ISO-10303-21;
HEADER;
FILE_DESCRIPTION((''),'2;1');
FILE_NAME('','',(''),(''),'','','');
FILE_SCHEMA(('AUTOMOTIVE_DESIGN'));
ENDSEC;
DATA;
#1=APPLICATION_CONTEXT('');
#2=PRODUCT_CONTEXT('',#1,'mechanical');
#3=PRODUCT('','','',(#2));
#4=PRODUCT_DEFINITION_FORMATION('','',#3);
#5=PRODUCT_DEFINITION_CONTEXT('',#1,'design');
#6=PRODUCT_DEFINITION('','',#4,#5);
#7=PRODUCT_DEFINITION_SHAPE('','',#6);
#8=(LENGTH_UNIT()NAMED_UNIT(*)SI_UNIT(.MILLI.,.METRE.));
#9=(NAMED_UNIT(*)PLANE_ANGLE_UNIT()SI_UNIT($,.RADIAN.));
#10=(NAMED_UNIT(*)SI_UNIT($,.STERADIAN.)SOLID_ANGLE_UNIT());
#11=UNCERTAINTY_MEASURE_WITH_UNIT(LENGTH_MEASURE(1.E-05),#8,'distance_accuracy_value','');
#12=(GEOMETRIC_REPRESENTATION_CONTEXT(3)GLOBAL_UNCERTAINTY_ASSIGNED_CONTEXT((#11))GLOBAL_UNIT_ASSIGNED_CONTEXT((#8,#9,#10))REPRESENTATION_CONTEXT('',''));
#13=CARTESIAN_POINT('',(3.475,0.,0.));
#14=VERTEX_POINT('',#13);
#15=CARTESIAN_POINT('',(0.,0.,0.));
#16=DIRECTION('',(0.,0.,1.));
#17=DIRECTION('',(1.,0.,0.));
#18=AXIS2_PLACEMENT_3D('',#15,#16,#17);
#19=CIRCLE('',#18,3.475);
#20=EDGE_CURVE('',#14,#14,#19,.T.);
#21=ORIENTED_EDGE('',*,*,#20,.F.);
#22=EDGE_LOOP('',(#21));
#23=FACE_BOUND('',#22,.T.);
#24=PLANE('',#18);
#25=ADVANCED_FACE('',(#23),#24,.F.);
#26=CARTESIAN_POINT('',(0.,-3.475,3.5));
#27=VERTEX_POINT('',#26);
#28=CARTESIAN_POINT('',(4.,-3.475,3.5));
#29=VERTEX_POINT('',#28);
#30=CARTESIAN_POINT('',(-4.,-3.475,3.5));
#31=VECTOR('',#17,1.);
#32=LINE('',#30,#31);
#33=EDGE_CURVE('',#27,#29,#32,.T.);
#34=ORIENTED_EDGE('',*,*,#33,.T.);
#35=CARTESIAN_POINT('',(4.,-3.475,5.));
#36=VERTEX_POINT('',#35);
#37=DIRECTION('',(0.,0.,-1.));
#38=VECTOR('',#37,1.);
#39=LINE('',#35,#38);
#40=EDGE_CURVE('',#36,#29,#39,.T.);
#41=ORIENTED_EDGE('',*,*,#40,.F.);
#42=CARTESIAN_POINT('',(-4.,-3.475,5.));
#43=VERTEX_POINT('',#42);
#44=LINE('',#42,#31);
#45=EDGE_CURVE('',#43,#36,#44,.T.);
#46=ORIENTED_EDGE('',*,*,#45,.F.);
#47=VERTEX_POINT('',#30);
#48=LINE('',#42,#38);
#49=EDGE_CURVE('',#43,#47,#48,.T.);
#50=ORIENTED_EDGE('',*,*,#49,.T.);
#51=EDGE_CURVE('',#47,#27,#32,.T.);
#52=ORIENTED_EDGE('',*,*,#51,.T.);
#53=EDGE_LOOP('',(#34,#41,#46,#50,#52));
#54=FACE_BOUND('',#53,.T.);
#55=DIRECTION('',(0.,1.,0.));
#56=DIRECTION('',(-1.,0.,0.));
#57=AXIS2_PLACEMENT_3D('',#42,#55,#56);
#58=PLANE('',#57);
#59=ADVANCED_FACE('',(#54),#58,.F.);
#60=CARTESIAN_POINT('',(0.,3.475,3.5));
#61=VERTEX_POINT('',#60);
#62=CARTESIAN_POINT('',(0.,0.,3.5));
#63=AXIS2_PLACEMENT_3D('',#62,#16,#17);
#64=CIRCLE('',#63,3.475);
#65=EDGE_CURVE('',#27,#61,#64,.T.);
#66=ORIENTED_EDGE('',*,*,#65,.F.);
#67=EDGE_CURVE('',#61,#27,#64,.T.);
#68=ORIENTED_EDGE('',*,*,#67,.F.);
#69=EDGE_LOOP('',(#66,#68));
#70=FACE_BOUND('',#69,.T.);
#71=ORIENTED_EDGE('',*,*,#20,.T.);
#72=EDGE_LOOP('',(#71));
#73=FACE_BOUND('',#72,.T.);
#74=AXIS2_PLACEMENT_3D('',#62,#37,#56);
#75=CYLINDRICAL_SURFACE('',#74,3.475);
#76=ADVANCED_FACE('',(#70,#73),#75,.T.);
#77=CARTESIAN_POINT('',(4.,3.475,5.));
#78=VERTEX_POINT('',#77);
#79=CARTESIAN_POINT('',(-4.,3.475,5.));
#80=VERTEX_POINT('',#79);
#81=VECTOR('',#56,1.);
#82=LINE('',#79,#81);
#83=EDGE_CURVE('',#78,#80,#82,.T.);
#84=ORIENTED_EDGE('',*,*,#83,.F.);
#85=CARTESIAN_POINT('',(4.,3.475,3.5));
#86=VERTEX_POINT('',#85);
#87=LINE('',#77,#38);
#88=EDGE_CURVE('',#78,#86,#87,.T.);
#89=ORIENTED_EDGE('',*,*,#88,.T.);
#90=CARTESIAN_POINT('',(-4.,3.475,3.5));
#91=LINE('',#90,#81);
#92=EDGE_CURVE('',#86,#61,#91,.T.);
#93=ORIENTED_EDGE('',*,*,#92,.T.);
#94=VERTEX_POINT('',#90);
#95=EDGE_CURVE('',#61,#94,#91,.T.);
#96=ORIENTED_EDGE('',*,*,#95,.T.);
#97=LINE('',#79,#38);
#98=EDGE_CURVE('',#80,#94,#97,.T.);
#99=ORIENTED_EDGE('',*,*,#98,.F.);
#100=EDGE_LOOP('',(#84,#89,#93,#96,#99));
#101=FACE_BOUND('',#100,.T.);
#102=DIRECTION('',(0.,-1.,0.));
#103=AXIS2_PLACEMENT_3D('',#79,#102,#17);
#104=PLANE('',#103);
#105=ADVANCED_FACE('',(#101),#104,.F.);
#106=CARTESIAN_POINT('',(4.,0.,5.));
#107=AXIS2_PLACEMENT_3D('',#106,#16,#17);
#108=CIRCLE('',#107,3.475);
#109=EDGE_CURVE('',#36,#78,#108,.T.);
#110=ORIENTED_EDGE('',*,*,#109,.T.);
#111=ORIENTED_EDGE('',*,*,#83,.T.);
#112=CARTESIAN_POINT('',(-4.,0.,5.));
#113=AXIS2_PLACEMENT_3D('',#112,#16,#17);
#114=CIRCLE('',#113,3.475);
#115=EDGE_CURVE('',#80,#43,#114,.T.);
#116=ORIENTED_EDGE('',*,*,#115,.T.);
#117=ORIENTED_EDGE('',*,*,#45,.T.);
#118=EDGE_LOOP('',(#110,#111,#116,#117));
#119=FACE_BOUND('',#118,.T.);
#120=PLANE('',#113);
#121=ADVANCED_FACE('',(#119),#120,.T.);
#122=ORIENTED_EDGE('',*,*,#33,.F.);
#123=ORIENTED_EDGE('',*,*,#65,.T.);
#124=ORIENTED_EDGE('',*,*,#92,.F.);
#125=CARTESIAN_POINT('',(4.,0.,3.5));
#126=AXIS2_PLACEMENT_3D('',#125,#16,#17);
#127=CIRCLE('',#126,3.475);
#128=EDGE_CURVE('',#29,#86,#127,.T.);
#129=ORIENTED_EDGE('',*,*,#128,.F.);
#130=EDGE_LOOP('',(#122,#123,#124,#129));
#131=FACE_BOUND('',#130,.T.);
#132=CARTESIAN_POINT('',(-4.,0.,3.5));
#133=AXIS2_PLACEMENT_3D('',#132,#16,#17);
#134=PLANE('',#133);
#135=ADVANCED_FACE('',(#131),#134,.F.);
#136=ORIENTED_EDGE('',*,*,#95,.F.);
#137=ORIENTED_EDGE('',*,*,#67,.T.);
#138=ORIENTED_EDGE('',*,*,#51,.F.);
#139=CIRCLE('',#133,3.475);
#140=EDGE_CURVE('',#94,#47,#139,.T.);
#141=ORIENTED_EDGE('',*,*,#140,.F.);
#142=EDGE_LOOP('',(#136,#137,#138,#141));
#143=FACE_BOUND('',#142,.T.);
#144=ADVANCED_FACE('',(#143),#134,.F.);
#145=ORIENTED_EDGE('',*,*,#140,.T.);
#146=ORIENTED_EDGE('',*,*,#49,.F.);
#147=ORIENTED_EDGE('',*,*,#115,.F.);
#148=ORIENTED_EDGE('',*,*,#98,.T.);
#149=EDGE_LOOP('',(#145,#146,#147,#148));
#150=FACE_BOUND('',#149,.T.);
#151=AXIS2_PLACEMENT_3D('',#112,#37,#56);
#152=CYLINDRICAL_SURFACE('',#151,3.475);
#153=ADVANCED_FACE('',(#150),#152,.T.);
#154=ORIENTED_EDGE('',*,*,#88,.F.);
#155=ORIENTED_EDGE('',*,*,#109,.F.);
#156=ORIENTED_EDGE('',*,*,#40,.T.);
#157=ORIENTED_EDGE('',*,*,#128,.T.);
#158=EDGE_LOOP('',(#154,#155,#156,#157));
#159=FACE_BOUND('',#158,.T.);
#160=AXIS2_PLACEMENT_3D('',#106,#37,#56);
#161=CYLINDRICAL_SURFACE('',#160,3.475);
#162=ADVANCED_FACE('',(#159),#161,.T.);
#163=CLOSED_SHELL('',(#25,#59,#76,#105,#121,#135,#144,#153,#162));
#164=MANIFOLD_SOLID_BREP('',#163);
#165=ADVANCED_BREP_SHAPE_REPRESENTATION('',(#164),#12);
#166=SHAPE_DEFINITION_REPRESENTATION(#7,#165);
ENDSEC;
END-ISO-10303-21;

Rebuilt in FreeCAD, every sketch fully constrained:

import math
import FreeCAD as App
import Part
import Sketcher
Q = App.Units.Quantity

doc = App.newDocument("Part")
params = doc.addObject("Spreadsheet::Sheet", "Params")
for row, (alias, value) in enumerate([
    ("sketch1_diameter", "6.95 mm"),
    ("pad1_length", "3.5 mm"),
    ("sketch2_width", "8 mm"),
    ("pad2_length", "1.5 mm"),
], start=1):
    params.set(f"A{row}", alias)
    params.set(f"B{row}", "=" + value)
    params.setAlias(f"B{row}", alias)

body = doc.addObject("PartDesign::Body", "Body")

# Sketch on XY plane
sketch1 = doc.addObject("Sketcher::SketchObject", "Sketch")
body.addObject(sketch1)
sketch1.AttachmentSupport = (doc.XY_Plane, [""])
sketch1.MapMode = "FlatFace"
sketch1.addGeometry(Part.Circle(App.Vector(0, 0, 0), App.Vector(0, 0, 1), 3.5), False)
sketch1.addConstraint([
    Sketcher.Constraint("Coincident", 0, 3, -1, 1),
    Sketcher.Constraint("Diameter", 0, Q("6.95 mm")),
])
sketch1.setExpression("Constraints[1]", "Params.sketch1_diameter")
pad1 = doc.addObject("PartDesign::Pad", "Pad")
body.addObject(pad1)
pad1.Profile = sketch1
pad1.setExpression("Length", "Params.pad1_length")

# Sketch on XY plane
sketch2 = doc.addObject("Sketcher::SketchObject", "Sketch001")
body.addObject(sketch2)
sketch2.AttachmentSupport = (doc.XY_Plane, [""])
sketch2.MapMode = "FlatFace"
sketch2.AttachmentOffset = App.Placement(App.Vector(0, 0, 3.5), App.Rotation())
sketch2.addGeometry([
    Part.LineSegment(App.Vector(4, 3.5, 0), App.Vector(-4, 3.5, 0)),
    Part.ArcOfCircle(Part.Circle(App.Vector(-4, 0, 0), App.Vector(0, 0, 1), 3.5), math.radians(90), math.radians(270)),
    Part.LineSegment(App.Vector(-4, -3.5, 0), App.Vector(4, -3.5, 0)),
    Part.ArcOfCircle(Part.Circle(App.Vector(4, 0, 0), App.Vector(0, 0, 1), 3.5), math.radians(-90), math.radians(90)),
], False)
sketch2.addConstraint([
    Sketcher.Constraint("Tangent", 0, 2, 1, 1),
    Sketcher.Constraint("Tangent", 1, 2, 2, 1),
    Sketcher.Constraint("Tangent", 2, 2, 3, 1),
    Sketcher.Constraint("Tangent", 3, 2, 0, 1),
    Sketcher.Constraint("Horizontal", 0),
    Sketcher.Constraint("Horizontal", 2),
    Sketcher.Constraint("Symmetric", 1, 3, 3, 3, -1, 1),
    Sketcher.Constraint("DistanceX", 0, 2, 0, 1, Q("8 mm")),
    Sketcher.Constraint("Radius", 1, Q("3.475 mm")),
])
sketch2.setExpression("Constraints[7]", "Params.sketch2_width")
pad2 = doc.addObject("PartDesign::Pad", "Pad001")
body.addObject(pad2)
pad2.Profile = sketch2
pad2.setExpression("Length", "Params.pad2_length")

doc.recompute()
